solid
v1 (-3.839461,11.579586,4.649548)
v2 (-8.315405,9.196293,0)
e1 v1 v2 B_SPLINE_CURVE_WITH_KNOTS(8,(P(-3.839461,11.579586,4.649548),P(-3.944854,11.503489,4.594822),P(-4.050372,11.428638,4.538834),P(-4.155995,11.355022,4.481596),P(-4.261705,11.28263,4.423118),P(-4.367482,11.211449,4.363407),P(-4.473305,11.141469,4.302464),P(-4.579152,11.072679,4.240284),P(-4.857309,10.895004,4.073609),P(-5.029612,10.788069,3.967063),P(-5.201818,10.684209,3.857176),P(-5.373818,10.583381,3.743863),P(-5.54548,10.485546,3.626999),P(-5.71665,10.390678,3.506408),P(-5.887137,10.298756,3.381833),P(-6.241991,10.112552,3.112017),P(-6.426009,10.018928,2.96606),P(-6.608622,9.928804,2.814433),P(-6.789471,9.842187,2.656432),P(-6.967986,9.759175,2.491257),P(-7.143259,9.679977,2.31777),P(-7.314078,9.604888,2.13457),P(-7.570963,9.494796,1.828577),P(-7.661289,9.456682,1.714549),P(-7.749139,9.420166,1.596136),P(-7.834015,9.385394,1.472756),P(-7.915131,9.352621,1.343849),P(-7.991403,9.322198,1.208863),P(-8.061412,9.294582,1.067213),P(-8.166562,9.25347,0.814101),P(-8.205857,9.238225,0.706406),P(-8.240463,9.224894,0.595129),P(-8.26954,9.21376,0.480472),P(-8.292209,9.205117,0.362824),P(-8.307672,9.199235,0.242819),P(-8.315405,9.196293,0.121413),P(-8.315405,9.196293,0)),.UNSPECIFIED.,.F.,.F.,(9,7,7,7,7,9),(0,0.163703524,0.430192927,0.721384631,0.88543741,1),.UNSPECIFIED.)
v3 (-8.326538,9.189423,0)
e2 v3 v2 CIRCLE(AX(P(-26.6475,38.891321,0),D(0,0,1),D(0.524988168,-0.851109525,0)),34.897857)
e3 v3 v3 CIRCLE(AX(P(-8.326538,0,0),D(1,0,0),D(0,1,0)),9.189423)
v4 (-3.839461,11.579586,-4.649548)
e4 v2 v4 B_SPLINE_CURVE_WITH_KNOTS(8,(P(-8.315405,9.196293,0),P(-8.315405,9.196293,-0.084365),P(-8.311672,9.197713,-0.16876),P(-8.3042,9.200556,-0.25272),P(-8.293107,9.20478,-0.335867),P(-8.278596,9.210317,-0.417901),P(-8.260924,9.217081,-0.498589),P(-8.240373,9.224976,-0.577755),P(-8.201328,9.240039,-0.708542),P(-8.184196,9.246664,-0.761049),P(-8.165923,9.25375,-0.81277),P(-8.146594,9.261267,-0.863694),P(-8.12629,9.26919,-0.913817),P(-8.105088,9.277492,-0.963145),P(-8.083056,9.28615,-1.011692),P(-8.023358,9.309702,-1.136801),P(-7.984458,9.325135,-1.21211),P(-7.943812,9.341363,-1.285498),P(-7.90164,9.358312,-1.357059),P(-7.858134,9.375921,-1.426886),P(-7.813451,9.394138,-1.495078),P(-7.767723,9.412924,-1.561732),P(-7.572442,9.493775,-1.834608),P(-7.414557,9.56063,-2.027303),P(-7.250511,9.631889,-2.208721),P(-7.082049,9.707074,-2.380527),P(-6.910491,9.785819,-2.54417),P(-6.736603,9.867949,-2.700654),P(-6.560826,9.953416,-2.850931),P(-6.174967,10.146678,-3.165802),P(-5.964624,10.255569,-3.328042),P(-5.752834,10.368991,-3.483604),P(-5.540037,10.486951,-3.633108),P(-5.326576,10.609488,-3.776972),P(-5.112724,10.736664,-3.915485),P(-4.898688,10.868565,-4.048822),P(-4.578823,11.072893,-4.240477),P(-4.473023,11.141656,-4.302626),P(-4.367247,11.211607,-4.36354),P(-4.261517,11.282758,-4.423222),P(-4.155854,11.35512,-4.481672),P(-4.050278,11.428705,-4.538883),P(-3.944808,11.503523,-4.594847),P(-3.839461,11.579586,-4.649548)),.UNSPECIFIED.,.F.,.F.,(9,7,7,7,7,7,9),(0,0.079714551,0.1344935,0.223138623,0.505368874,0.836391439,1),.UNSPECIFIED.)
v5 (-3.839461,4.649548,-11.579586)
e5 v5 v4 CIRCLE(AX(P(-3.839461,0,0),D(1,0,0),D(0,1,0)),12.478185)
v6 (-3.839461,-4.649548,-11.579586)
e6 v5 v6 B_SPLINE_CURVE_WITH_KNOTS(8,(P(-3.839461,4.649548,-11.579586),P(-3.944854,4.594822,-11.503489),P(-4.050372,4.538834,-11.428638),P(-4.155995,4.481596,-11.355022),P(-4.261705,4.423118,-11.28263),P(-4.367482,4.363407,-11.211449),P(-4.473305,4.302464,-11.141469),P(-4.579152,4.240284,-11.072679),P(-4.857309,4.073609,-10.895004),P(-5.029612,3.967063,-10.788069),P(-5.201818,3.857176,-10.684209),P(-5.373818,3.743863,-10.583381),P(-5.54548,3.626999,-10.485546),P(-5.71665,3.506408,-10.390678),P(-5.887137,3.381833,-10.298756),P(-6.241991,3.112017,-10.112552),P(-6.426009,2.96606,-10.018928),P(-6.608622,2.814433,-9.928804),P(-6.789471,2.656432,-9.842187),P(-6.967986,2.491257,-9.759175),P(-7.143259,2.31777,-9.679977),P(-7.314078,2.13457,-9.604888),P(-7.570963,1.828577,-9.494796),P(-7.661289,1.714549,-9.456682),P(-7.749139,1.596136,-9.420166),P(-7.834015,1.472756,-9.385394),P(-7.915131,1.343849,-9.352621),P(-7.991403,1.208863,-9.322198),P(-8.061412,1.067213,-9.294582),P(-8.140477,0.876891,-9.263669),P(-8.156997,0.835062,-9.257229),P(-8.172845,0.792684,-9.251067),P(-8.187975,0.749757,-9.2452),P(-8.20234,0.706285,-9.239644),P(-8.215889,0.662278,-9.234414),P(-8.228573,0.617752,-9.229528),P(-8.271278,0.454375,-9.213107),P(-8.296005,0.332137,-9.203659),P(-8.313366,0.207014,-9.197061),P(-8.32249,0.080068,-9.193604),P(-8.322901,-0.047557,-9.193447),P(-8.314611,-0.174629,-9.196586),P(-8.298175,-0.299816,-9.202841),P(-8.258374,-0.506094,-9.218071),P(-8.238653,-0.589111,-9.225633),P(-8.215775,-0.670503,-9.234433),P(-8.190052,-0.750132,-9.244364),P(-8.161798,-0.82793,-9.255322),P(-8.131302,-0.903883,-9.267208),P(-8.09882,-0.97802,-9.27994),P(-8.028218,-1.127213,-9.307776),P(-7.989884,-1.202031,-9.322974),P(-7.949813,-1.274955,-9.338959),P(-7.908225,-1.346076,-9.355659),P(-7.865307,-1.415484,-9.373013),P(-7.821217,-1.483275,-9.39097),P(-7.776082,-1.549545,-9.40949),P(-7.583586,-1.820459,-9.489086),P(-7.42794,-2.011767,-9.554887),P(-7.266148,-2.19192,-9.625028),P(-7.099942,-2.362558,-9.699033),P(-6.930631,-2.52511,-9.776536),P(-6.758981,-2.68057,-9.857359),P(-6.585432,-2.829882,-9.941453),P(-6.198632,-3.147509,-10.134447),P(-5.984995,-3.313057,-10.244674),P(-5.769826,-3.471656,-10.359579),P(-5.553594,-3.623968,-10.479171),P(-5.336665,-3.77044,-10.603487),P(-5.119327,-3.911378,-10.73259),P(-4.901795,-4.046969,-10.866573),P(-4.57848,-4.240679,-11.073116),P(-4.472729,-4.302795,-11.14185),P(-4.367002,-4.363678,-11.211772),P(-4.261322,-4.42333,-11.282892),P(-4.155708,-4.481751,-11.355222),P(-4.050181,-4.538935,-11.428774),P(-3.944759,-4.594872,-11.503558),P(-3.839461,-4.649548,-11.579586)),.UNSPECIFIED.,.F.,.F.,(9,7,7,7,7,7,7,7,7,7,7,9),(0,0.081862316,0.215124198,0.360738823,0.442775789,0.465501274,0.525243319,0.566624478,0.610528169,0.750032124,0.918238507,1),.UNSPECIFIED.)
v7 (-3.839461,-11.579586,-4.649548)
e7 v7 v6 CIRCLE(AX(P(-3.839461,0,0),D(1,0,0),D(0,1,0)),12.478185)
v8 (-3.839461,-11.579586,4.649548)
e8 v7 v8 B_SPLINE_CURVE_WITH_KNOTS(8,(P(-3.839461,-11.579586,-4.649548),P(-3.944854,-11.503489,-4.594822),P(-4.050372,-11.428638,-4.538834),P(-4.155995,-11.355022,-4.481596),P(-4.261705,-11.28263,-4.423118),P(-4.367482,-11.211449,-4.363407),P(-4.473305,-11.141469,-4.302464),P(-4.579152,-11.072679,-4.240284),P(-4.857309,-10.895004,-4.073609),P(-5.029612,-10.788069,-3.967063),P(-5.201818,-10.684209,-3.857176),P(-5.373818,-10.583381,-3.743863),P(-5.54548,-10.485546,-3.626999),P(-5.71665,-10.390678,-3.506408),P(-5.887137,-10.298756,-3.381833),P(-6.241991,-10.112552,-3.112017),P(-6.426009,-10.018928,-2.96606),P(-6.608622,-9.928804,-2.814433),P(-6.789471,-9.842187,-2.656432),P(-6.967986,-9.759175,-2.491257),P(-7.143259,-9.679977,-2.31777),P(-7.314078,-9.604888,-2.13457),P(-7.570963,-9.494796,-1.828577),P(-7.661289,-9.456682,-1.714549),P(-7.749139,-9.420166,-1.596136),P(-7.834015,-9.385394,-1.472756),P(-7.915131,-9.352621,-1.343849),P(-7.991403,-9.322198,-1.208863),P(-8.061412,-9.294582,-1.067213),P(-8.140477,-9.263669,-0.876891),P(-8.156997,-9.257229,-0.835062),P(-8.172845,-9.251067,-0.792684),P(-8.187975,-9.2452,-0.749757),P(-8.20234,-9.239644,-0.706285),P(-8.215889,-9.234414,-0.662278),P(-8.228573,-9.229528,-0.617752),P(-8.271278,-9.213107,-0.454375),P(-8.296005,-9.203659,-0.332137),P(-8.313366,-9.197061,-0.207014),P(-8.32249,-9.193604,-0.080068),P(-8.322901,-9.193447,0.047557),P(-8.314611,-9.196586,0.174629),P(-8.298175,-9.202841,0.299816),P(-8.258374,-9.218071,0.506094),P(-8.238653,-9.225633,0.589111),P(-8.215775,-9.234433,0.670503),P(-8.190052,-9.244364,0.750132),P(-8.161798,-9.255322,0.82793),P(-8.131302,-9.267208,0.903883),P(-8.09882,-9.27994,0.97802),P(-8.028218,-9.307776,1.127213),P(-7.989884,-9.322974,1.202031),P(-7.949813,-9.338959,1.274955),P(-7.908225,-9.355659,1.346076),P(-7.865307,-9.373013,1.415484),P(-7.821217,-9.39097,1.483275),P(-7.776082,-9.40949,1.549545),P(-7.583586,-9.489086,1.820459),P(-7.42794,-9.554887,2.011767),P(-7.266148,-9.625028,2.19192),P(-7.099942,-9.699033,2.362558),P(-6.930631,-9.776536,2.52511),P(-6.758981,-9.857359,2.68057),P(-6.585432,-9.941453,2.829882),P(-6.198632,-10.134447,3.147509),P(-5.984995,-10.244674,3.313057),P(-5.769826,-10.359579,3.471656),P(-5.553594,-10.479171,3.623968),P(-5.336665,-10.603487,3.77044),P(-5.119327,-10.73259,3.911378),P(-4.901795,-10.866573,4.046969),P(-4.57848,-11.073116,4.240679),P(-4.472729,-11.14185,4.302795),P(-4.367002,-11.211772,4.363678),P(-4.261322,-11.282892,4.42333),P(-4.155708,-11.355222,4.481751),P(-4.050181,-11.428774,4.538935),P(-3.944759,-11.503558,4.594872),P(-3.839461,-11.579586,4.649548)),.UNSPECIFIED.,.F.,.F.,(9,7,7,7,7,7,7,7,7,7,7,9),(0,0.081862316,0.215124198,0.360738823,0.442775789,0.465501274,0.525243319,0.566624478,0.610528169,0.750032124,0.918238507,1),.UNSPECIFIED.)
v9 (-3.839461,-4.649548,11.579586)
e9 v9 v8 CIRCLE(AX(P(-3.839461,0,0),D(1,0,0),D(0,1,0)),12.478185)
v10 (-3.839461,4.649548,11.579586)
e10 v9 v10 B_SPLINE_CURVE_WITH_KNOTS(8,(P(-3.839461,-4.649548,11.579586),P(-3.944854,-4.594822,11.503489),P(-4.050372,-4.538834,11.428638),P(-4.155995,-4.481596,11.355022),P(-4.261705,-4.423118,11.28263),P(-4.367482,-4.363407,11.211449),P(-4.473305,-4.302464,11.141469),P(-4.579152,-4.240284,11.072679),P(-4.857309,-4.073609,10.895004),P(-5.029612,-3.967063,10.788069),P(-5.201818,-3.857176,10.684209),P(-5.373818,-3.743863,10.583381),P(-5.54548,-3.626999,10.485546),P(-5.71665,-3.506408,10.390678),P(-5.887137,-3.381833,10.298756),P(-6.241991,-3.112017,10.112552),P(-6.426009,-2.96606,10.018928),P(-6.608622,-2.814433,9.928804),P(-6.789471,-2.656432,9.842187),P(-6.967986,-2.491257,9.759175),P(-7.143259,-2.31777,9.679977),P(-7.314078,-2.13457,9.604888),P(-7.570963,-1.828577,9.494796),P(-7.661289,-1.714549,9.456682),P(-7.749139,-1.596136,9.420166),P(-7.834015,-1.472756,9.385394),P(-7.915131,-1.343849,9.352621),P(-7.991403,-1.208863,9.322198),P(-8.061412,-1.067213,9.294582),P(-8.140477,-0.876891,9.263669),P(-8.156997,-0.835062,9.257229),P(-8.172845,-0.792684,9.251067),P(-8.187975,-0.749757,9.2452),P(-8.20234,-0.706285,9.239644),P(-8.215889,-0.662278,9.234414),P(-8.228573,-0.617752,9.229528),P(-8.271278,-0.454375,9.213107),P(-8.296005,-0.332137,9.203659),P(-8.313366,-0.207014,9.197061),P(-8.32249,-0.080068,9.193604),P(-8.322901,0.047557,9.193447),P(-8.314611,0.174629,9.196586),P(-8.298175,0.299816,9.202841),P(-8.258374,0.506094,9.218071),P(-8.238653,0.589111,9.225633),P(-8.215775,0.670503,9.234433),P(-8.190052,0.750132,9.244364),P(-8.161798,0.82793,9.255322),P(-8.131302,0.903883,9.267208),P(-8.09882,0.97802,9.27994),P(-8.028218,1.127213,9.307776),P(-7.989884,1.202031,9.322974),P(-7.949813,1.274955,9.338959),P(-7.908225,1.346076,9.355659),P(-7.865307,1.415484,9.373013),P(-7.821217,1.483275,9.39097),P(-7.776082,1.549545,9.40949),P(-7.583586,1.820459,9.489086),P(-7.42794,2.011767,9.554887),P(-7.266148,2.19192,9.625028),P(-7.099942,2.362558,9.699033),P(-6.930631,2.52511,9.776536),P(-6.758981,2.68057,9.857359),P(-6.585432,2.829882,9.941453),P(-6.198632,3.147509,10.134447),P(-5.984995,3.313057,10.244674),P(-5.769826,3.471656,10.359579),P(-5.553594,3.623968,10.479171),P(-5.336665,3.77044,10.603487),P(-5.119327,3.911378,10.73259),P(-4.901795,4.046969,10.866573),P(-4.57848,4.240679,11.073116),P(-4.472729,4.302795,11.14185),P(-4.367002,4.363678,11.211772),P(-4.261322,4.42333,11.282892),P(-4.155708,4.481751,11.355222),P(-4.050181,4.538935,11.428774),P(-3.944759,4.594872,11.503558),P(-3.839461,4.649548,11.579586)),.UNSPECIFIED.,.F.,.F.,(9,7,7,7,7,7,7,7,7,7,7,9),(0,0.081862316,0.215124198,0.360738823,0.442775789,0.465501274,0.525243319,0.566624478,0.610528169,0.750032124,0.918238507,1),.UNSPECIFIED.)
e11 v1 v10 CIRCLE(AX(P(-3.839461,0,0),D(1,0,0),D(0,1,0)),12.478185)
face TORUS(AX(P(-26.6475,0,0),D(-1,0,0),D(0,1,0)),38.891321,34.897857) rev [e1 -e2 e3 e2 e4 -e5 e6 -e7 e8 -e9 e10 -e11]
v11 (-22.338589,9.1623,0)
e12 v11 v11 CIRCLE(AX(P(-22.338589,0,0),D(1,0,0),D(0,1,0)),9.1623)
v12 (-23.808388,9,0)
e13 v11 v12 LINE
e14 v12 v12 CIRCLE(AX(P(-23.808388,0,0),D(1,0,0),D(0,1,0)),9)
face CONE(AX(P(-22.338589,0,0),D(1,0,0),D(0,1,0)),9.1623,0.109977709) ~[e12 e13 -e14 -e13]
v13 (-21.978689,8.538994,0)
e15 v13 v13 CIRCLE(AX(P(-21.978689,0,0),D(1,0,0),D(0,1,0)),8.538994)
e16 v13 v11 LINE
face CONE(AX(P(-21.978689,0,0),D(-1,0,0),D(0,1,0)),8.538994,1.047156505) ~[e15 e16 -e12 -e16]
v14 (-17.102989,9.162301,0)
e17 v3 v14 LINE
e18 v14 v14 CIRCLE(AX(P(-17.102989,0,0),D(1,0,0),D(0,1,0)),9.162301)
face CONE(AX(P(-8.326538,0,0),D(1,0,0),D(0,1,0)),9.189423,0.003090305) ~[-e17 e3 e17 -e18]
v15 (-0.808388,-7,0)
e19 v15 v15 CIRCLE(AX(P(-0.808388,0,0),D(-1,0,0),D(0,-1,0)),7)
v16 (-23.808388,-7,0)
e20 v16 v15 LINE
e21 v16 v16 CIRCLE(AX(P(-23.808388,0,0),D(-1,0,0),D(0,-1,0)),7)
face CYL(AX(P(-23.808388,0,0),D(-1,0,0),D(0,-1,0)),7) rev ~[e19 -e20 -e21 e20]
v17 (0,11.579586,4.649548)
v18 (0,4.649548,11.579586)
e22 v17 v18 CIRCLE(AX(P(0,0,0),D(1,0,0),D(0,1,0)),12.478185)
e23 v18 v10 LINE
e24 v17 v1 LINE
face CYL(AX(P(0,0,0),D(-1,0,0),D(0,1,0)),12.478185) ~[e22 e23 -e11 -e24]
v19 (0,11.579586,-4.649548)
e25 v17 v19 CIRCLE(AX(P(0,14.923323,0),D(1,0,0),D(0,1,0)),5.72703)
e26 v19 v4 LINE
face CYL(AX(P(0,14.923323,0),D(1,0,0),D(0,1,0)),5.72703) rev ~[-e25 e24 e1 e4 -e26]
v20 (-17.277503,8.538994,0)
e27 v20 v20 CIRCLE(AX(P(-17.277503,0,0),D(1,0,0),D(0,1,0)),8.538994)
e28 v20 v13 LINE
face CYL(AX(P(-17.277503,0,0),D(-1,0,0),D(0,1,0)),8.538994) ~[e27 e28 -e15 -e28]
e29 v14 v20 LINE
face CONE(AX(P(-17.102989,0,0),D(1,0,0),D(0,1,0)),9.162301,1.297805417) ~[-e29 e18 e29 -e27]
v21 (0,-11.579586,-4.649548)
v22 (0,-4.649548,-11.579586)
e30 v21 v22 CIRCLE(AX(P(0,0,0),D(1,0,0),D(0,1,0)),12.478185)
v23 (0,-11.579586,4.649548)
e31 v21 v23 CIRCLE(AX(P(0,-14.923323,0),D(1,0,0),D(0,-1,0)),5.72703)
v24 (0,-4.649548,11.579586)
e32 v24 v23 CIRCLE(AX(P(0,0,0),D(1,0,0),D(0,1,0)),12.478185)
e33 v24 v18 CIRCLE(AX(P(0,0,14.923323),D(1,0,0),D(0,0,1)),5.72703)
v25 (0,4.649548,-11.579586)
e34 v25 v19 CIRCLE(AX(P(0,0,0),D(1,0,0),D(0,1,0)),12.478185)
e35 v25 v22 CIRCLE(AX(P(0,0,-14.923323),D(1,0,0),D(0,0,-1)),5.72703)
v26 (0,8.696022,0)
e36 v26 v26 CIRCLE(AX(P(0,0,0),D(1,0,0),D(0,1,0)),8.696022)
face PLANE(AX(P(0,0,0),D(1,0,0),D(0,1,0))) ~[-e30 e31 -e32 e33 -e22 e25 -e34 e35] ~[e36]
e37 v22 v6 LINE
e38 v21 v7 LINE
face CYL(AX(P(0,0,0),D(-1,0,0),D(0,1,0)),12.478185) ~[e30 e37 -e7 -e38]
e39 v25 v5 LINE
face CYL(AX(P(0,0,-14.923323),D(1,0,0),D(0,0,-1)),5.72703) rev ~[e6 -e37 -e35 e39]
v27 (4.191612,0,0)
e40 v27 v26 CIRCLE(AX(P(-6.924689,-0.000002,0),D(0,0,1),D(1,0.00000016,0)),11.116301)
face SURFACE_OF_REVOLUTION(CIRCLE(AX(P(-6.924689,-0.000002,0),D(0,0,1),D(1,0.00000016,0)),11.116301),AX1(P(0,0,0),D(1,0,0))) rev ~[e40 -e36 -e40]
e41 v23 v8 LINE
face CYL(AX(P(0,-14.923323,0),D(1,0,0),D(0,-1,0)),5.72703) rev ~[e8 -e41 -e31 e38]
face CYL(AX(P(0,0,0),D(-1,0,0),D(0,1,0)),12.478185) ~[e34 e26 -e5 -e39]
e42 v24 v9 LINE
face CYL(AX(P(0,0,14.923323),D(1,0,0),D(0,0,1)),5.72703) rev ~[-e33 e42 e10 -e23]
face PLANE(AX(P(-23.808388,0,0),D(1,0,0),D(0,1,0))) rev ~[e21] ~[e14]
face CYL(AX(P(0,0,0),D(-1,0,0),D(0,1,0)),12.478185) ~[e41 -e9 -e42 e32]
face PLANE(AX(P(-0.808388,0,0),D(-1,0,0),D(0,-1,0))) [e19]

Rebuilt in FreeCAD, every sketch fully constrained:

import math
import FreeCAD as App
import Part
import Sketcher

V = App.Vector
Q = App.Units.Quantity

doc = App.newDocument("Part")
body = doc.addObject("PartDesign::Body", "Body")

# Sketch on XY plane
sketch1 = doc.addObject("Sketcher::SketchObject", "Sketch")
body.addObject(sketch1)
sketch1.AttachmentSupport = (doc.XY_Plane, [""])
sketch1.MapMode = "FlatFace"
sketch1.addGeometry(Part.ArcOfCircle(Part.Circle(V(-6.9, 0, 0), V(0, 0, 1), 11.1), math.radians(0), math.radians(51)), False)
sketch1.addGeometry(Part.LineSegment(V(0, 8.7, 0), V(0, 12.5, 0)), False)
sketch1.addGeometry(Part.LineSegment(V(0, 12.5, 0), V(-3.8, 12.5, 0)), False)
sketch1.addGeometry(Part.ArcOfCircle(Part.Circle(V(-26.6, 38.9, 0), V(0, 0, 1), 34.9), math.radians(-58.33), math.radians(-49.19)), False)
sketch1.addGeometry(Part.LineSegment(V(-8.3, 9.2, 0), V(-17.1, 9.2, 0)), False)
sketch1.addGeometry(Part.LineSegment(V(-17.1, 9.2, 0), V(-17.3, 8.5, 0)), False)
sketch1.addGeometry(Part.LineSegment(V(-17.3, 8.5, 0), V(-22, 8.5, 0)), False)
sketch1.addGeometry(Part.LineSegment(V(-22, 8.5, 0), V(-22.3, 9.2, 0)), False)
sketch1.addGeometry(Part.LineSegment(V(-22.3, 9.2, 0), V(-23.8, 9, 0)), False)
sketch1.addGeometry(Part.LineSegment(V(-23.8, 9, 0), V(-23.8, 0, 0)), False)
sketch1.addGeometry(Part.LineSegment(V(-23.8, 0, 0), V(4.2, 0, 0)), False)
sketch1.addConstraint(Sketcher.Constraint("Coincident", 0, 2, 1, 1))
sketch1.addConstraint(Sketcher.Constraint("Coincident", 1, 2, 2, 1))
sketch1.addConstraint(Sketcher.Constraint("Coincident", 2, 2, 3, 2))
sketch1.addConstraint(Sketcher.Constraint("Coincident", 3, 1, 4, 1))
sketch1.addConstraint(Sketcher.Constraint("Coincident", 4, 2, 5, 1))
sketch1.addConstraint(Sketcher.Constraint("Coincident", 5, 2, 6, 1))
sketch1.addConstraint(Sketcher.Constraint("Coincident", 6, 2, 7, 1))
sketch1.addConstraint(Sketcher.Constraint("Coincident", 7, 2, 8, 1))
sketch1.addConstraint(Sketcher.Constraint("Coincident", 8, 2, 9, 1))
sketch1.addConstraint(Sketcher.Constraint("Coincident", 9, 2, 10, 1))
sketch1.addConstraint(Sketcher.Constraint("Coincident", 10, 2, 0, 1))
sketch1.addConstraint(Sketcher.Constraint("Vertical", 1))
sketch1.addConstraint(Sketcher.Constraint("Horizontal", 2))
sketch1.addConstraint(Sketcher.Constraint("Horizontal", 6))
sketch1.addConstraint(Sketcher.Constraint("Vertical", 9))
sketch1.addConstraint(Sketcher.Constraint("Horizontal", 10))
sketch1.addConstraint(Sketcher.Constraint("PointOnObject", 0, 3, -1))
sketch1.addConstraint(Sketcher.Constraint("PointOnObject", 0, 2, -2))
sketch1.addConstraint(Sketcher.Constraint("PointOnObject", 9, 2, -1))
sketch1.addConstraint(Sketcher.Constraint("Horizontal", 4, 2, 7, 2))
sketch1.addConstraint(Sketcher.Constraint("DistanceX", 10, 1, 10, 2, Q("28 mm")))
sketch1.addConstraint(Sketcher.Constraint("DistanceY", 9, 2, 9, 1, Q("9 mm")))
sketch1.addConstraint(Sketcher.Constraint("Radius", 0, Q("11.116301 mm")))
sketch1.addConstraint(Sketcher.Constraint("Radius", 3, Q("34.897857 mm")))
sketch1.addConstraint(Sketcher.Constraint("DistanceX", 6, 2, 0, 3, Q("15.054 mm")))
sketch1.addConstraint(Sketcher.Constraint("DistanceX", 2, 2, 2, 1, Q("3.839461 mm")))
sketch1.addConstraint(Sketcher.Constraint("DistanceX", 3, 3, -1, 1, Q("26.6475 mm")))
sketch1.addConstraint(Sketcher.Constraint("DistanceY", -1, 1, 4, 2, Q("9.162301 mm")))
sketch1.addConstraint(Sketcher.Constraint("DistanceY", 0, 2, 3, 3, Q("30.195299 mm")))
sketch1.addConstraint(Sketcher.Constraint("DistanceY", 0, 2, 3, 1, Q("0.493401 mm")))
sketch1.addConstraint(Sketcher.Constraint("DistanceX", 4, 2, 0, 3, Q("10.1783 mm")))
sketch1.addConstraint(Sketcher.Constraint("DistanceX", 7, 2, 6, 2, Q("0.3599 mm")))
sketch1.addConstraint(Sketcher.Constraint("Distance", 7, Q("0.719749 mm")))
sketch1.addConstraint(Sketcher.Constraint("DistanceX", 6, 2, 6, 1, Q("4.701186 mm")))
sketch1.addConstraint(Sketcher.Constraint("DistanceX", 0, 3, -1, 1, Q("6.924689 mm")))
revolution = doc.addObject("PartDesign::Revolution", "Revolution")
body.addObject(revolution)
revolution.Profile = sketch1
revolution.ReferenceAxis = (sketch1, ["H_Axis"])
revolution.Angle = 360

# Sketch on YZ plane
sketch2 = doc.addObject("Sketcher::SketchObject", "Sketch001")
body.addObject(sketch2)
sketch2.AttachmentSupport = (doc.YZ_Plane, [""])
sketch2.MapMode = "FlatFace"
sketch2.addGeometry(Part.Circle(V(15, 0, 0), V(0, 0, 1), 6), False)
sketch2.addConstraint(Sketcher.Constraint("PointOnObject", 0, 3, -1))
sketch2.addConstraint(Sketcher.Constraint("Diameter", 0, Q("11.45406 mm")))
sketch2.addConstraint(Sketcher.Constraint("DistanceX", -1, 1, 0, 3, Q("14.923323 mm")))
pocket1 = doc.addObject("PartDesign::Pocket", "Pocket")
body.addObject(pocket1)
pocket1.Profile = sketch2
pocket1.Type = "ThroughAll"
doc.recompute()

polarpattern = doc.addObject("PartDesign::PolarPattern", "PolarPattern")
body.addObject(polarpattern)
polarpattern.Originals = [pocket1]
polarpattern.Axis = (doc.X_Axis, [""])
polarpattern.Angle = 360
polarpattern.Occurrences = 4
body.Tip = polarpattern

# Sketch on YZ plane
sketch3 = doc.addObject("Sketcher::SketchObject", "Sketch002")
body.addObject(sketch3)
sketch3.AttachmentSupport = (doc.YZ_Plane, [""])
sketch3.MapMode = "FlatFace"
sketch3.AttachmentOffset = App.Placement(V(0, 0, -23.808388), App.Rotation())
sketch3.addGeometry(Part.Circle(V(0, 0, 0), V(0, 0, 1), 7), False)
sketch3.addConstraint(Sketcher.Constraint("Coincident", 0, 3, -1, 1))
sketch3.addConstraint(Sketcher.Constraint("Diameter", 0, Q("14 mm")))
pocket2 = doc.addObject("PartDesign::Pocket", "Pocket001")
body.addObject(pocket2)
pocket2.Profile = sketch3
pocket2.Length = 23
pocket2.Reversed = True

doc.recompute()
